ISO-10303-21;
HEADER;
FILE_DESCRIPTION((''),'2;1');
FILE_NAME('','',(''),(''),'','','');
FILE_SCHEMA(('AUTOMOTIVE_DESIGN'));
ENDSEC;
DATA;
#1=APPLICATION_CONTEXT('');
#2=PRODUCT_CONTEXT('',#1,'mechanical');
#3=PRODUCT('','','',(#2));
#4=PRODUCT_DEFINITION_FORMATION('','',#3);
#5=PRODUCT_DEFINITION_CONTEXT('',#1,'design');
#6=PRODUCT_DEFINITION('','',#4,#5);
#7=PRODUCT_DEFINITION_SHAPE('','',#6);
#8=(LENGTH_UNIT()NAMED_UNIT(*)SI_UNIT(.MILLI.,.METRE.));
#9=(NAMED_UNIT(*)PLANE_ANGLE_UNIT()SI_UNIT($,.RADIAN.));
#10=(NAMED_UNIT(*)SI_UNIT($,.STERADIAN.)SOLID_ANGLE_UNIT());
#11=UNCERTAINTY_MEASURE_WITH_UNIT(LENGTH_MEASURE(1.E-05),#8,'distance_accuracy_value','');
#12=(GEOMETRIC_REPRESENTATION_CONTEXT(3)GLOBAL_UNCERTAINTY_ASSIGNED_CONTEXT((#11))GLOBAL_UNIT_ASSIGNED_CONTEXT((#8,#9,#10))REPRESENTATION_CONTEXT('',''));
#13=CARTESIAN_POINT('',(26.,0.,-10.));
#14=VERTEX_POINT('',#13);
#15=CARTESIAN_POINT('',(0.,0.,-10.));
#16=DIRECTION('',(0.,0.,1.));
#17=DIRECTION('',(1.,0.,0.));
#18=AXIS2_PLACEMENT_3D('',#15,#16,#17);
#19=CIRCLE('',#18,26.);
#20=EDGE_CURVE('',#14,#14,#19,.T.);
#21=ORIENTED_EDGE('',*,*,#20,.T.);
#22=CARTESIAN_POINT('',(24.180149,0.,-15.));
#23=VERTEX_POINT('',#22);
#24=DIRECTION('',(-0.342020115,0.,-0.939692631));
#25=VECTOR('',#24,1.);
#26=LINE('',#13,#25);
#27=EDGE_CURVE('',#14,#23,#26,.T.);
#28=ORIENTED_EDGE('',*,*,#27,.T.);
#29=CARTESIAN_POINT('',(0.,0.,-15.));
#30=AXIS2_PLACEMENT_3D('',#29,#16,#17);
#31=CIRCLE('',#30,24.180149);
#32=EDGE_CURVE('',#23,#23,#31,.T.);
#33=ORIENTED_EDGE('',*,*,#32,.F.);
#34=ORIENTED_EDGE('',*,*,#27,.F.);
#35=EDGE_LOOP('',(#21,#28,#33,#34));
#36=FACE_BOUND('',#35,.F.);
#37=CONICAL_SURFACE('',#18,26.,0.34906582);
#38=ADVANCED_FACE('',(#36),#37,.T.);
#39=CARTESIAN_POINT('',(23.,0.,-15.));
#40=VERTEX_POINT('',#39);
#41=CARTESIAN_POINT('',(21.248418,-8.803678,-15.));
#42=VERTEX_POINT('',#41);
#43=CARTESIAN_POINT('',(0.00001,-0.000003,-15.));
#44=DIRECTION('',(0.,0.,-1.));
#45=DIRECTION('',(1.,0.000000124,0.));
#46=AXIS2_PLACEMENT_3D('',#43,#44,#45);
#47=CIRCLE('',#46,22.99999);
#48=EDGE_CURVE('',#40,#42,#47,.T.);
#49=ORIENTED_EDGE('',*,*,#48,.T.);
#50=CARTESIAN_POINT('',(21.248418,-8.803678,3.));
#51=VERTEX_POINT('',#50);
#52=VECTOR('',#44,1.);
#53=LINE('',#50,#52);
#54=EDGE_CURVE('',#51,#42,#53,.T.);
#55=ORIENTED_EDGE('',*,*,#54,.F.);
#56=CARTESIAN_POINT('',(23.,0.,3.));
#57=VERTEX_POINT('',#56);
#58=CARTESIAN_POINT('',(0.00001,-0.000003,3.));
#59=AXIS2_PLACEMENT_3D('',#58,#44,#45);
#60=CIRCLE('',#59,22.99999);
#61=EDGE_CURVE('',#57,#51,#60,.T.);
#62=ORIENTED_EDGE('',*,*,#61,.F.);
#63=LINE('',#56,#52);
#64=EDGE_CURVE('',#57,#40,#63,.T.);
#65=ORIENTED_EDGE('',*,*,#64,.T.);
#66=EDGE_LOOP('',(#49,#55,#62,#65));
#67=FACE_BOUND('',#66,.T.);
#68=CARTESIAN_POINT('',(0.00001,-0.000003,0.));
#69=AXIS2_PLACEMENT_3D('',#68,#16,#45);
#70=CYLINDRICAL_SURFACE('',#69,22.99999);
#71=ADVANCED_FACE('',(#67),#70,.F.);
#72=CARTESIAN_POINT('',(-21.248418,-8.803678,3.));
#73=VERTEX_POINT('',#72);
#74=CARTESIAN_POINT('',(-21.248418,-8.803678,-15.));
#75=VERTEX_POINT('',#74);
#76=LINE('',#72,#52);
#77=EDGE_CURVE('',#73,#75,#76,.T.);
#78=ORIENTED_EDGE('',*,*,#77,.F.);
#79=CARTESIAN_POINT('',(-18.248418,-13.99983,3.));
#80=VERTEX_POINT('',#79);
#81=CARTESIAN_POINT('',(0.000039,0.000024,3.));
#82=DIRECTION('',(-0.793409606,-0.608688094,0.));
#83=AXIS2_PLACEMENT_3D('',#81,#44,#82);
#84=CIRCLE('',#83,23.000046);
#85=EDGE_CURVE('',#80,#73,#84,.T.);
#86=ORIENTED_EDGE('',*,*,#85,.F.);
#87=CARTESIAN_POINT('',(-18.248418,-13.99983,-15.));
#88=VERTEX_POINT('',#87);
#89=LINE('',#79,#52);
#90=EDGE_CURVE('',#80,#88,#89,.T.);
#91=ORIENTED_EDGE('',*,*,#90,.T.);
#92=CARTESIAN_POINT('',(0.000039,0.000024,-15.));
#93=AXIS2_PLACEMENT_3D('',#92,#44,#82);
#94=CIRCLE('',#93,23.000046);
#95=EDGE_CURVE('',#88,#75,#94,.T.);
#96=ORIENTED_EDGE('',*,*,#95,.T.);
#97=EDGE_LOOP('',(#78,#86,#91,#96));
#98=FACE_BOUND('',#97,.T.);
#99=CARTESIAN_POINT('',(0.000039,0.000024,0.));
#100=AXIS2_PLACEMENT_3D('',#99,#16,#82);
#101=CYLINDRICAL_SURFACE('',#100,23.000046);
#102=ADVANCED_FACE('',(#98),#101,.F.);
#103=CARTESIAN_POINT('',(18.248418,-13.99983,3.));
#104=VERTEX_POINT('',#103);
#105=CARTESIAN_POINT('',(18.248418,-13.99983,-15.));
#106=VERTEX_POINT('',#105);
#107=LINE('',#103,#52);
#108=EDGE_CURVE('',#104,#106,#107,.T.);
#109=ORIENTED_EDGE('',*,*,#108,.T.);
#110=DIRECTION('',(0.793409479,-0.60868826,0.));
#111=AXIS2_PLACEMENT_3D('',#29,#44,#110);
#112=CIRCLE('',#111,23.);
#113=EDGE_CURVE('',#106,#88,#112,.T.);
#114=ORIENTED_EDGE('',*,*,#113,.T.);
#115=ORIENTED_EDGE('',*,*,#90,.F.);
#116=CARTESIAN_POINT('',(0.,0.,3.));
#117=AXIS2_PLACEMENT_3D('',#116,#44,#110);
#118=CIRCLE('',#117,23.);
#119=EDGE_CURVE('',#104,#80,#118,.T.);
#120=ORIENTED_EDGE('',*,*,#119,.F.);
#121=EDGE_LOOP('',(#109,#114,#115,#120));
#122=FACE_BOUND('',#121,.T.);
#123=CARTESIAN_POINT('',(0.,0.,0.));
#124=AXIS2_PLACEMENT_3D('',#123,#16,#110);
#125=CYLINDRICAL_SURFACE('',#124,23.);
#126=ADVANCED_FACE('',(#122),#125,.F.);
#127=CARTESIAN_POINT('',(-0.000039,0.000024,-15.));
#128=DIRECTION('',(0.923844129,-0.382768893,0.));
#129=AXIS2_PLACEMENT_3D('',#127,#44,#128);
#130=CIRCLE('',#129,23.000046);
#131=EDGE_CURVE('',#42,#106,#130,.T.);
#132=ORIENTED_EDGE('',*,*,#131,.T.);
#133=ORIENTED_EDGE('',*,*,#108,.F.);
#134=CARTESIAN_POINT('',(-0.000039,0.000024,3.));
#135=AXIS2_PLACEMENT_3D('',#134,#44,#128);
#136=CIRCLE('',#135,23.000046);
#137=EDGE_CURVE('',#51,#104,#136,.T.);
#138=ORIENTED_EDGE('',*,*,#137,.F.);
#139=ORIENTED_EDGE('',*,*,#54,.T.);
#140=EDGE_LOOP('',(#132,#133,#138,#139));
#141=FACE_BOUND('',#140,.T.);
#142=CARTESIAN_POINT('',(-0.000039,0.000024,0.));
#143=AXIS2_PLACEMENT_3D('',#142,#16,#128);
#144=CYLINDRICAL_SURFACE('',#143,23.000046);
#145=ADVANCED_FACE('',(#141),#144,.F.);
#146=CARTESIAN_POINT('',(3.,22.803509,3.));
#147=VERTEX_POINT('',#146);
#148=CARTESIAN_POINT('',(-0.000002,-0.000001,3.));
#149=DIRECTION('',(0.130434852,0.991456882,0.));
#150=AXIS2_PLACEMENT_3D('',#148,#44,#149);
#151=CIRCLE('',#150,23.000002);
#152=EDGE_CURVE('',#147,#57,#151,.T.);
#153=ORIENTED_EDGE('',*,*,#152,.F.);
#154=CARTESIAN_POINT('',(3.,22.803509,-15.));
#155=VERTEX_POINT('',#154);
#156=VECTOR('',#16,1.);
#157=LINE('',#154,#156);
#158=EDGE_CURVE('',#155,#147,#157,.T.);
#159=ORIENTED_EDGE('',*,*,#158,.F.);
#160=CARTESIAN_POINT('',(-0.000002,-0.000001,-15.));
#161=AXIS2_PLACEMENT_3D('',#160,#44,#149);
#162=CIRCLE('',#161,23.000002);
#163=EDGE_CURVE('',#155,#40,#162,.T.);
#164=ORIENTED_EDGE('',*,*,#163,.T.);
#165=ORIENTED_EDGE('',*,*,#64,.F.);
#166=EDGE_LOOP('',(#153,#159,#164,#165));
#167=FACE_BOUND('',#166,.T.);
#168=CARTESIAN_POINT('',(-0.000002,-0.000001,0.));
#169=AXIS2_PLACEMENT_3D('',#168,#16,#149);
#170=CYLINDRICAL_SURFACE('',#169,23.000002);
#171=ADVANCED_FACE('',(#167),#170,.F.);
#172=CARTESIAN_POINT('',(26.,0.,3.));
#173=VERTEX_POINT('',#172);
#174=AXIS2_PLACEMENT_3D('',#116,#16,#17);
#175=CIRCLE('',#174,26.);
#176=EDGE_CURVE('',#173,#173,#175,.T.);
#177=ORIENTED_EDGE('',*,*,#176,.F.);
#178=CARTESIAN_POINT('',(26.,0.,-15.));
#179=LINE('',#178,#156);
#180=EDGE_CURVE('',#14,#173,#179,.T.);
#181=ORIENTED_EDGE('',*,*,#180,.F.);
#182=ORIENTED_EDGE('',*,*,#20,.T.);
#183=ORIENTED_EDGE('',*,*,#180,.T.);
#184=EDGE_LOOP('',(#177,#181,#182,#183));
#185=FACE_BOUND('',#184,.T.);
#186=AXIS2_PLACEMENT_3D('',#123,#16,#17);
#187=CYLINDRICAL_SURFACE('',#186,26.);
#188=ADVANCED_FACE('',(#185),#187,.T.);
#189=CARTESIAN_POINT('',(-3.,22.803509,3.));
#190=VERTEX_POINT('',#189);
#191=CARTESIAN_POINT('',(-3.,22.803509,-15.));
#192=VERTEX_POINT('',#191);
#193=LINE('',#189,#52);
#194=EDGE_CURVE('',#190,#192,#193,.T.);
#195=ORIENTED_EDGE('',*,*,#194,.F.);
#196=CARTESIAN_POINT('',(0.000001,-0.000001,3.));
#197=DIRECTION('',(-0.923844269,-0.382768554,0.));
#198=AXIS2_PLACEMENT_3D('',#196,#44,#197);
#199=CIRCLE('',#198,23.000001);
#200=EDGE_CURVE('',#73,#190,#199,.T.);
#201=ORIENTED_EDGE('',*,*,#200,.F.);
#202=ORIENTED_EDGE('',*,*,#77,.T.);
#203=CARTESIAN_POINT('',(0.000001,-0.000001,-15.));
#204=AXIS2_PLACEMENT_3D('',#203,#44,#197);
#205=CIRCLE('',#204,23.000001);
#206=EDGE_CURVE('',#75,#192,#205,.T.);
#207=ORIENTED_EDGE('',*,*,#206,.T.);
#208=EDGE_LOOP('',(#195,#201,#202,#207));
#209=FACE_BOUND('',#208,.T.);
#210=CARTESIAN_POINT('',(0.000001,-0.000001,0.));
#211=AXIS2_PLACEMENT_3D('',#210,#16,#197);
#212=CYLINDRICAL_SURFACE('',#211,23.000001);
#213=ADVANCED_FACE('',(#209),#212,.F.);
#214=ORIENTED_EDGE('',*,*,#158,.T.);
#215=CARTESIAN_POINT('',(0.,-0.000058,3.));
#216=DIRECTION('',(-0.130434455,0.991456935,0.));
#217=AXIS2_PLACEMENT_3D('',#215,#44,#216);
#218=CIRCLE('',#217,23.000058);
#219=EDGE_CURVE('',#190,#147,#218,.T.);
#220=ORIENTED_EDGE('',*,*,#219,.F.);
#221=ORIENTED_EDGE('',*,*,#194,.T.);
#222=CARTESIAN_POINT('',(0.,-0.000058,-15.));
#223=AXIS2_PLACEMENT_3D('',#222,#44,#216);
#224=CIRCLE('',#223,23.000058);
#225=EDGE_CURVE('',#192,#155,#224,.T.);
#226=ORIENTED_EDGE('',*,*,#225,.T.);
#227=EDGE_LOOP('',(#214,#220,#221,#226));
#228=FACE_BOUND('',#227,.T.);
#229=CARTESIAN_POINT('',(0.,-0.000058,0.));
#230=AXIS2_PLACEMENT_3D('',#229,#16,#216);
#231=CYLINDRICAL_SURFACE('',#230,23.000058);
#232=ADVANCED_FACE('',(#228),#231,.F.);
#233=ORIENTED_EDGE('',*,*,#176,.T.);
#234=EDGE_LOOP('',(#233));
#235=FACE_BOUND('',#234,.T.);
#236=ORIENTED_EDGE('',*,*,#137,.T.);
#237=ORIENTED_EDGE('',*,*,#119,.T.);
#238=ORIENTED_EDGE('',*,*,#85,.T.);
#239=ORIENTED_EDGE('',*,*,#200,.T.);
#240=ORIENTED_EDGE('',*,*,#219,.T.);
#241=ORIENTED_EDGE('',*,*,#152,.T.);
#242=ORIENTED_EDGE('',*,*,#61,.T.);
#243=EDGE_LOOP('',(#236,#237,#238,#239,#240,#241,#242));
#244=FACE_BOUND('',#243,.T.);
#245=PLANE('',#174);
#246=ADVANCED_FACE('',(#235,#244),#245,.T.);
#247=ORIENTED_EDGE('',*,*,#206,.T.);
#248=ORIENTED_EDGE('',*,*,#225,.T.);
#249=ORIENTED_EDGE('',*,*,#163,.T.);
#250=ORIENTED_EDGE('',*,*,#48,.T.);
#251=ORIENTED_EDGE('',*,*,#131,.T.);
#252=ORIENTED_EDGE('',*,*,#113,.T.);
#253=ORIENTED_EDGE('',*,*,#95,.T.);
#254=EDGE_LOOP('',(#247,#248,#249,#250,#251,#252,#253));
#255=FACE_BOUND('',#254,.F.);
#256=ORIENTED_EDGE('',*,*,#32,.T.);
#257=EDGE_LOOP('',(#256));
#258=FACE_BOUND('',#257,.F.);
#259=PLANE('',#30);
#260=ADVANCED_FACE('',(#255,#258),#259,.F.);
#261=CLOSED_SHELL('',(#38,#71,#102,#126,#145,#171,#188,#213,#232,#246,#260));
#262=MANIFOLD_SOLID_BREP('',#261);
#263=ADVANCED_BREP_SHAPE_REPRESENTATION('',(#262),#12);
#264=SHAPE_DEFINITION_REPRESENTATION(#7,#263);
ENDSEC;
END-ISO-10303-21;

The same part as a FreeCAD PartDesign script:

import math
import FreeCAD as App
import Part
import Sketcher
from FreeCAD import Vector
Q = App.Units.Quantity


def edges_at(feature, points):
    """Names of the edges that pass closest to the given points."""
    edges = feature.Shape.Edges
    near = lambda p: min(range(len(edges)), key=lambda i: edges[i].distToShape(Part.Vertex(*p))[0])
    return sorted({f"Edge{near(p) + 1}" for p in points})

doc = App.newDocument("Part")
body = doc.addObject("PartDesign::Body", "Body")

# Sketch on XY plane
sketch1 = body.newObject("Sketcher::SketchObject", "Sketch")
sketch1.AttachmentSupport = (doc.getObject("XY_Plane"), [""])
sketch1.MapMode = "FlatFace"
sketch1.addGeometry([
    Part.Circle(Vector(0, 0, 0), Vector(0, 0, 1), 26),  # 0
    Part.ArcOfCircle(Part.Circle(Vector(0, -0.000058, 0), Vector(0, 0, 1), 23.000058), math.radians(82.505301), math.radians(97.494699)),  # 1
    Part.ArcOfCircle(Part.Circle(Vector(-0.000002, -0.000001, 0), Vector(0, 0, 1), 23.000002), math.radians(0.000003), math.radians(82.505279)),  # 2
    Part.ArcOfCircle(Part.Circle(Vector(0.00001, -0.000003, 0), Vector(0, 0, 1), 22.99999), math.radians(-22.505285), math.radians(0.000007)),  # 3
    Part.ArcOfCircle(Part.Circle(Vector(-0.000039, 0.000024, 0), Vector(0, 0, 1), 23.000046), math.radians(-37.494704), math.radians(-22.5053)),  # 4
    Part.ArcOfCircle(Part.Circle(Vector(0, 0, 0), Vector(0, 0, 1), 23), math.radians(-142.505284), math.radians(-37.494716)),  # 5
    Part.ArcOfCircle(Part.Circle(Vector(0.000039, 0.000024, 0), Vector(0, 0, 1), 23.000046), math.radians(-157.4947), math.radians(-142.505296)),  # 6
    Part.ArcOfCircle(Part.Circle(Vector(0.000001, -0.000001, 0), Vector(0, 0, 1), 23.000001), math.radians(97.494721), math.radians(202.505279)),  # 7
], False)
sketch1.addConstraint([
    Sketcher.Constraint("Coincident", 1, 1, 2, 2),
    Sketcher.Constraint("Coincident", 2, 1, 3, 2),
    Sketcher.Constraint("Coincident", 3, 1, 4, 2),
    Sketcher.Constraint("Coincident", 4, 1, 5, 2),
    Sketcher.Constraint("Coincident", 5, 1, 6, 2),
    Sketcher.Constraint("Coincident", 6, 1, 7, 2),
    Sketcher.Constraint("Coincident", 7, 1, 1, 2),
    Sketcher.Constraint("Coincident", 0, 3, -1, 1),
    Sketcher.Constraint("Coincident", 2, 3, -1, 1),
    Sketcher.Constraint("Coincident", 5, 3, -1, 1),
    Sketcher.Constraint("Coincident", 7, 3, -1, 1),
    Sketcher.Constraint("PointOnObject", 1, 3, -2),
    Sketcher.Constraint("PointOnObject", 2, 1, -1),
    Sketcher.Constraint("Diameter", 0, Q("52 mm")),
    Sketcher.Constraint("Radius", 2, Q("23.000002 mm")),
    Sketcher.Constraint("Radius", 5, Q("23 mm")),
    Sketcher.Constraint("DistanceX", -1, 1, 1, 1, Q("3 mm")),
    Sketcher.Constraint("DistanceX", 7, 1, -1, 1, Q("3 mm")),
    Sketcher.Constraint("DistanceX", 4, 1, 3, 1, Q("3 mm")),
    Sketcher.Constraint("DistanceX", 6, 1, 5, 1, Q("3 mm")),
    Sketcher.Constraint("Radius", 3, Q("22.99999 mm")),
    Sketcher.Constraint("Radius", 1, Q("23.000058 mm")),
    Sketcher.Constraint("Radius", 4, Q("23.000046 mm")),
    Sketcher.Constraint("Radius", 6, Q("23.000046 mm")),
    Sketcher.Constraint("DistanceY", 4, 1, -1, 1, Q("13.99983 mm")),
    Sketcher.Constraint("DistanceX", 5, 1, -1, 1, Q("18.248418 mm")),
    Sketcher.Constraint("DistanceX", 4, 3, 1, 1, Q("3.000039 mm")),
])
pad1 = body.newObject("PartDesign::Pad", "Pad")
pad1.Profile = sketch1
pad1.Length = 3

# Sketch on XY plane
sketch2 = body.newObject("Sketcher::SketchObject", "Sketch001")
sketch2.AttachmentSupport = (doc.getObject("XY_Plane"), [""])
sketch2.MapMode = "FlatFace"
sketch2.addGeometry([
    Part.Circle(Vector(0, 0, 0), Vector(0, 0, 1), 26),  # 0
    Part.ArcOfCircle(Part.Circle(Vector(0, -0.000058, 0), Vector(0, 0, 1), 23.000058), math.radians(82.505301), math.radians(97.494699)),  # 1
    Part.ArcOfCircle(Part.Circle(Vector(-0.000002, -0.000001, 0), Vector(0, 0, 1), 23.000002), math.radians(0.000003), math.radians(82.505279)),  # 2
    Part.ArcOfCircle(Part.Circle(Vector(0.00001, -0.000003, 0), Vector(0, 0, 1), 22.99999), math.radians(-22.505285), math.radians(0.000007)),  # 3
    Part.ArcOfCircle(Part.Circle(Vector(-0.000039, 0.000024, 0), Vector(0, 0, 1), 23.000046), math.radians(-37.494704), math.radians(-22.5053)),  # 4
    Part.ArcOfCircle(Part.Circle(Vector(0, 0, 0), Vector(0, 0, 1), 23), math.radians(-142.505284), math.radians(-37.494716)),  # 5
    Part.ArcOfCircle(Part.Circle(Vector(0.000039, 0.000024, 0), Vector(0, 0, 1), 23.000046), math.radians(-157.4947), math.radians(-142.505296)),  # 6
    Part.ArcOfCircle(Part.Circle(Vector(0.000001, -0.000001, 0), Vector(0, 0, 1), 23.000001), math.radians(97.494721), math.radians(202.505279)),  # 7
], False)
sketch2.addConstraint([
    Sketcher.Constraint("Coincident", 1, 1, 2, 2),
    Sketcher.Constraint("Coincident", 2, 1, 3, 2),
    Sketcher.Constraint("Coincident", 3, 1, 4, 2),
    Sketcher.Constraint("Coincident", 4, 1, 5, 2),
    Sketcher.Constraint("Coincident", 5, 1, 6, 2),
    Sketcher.Constraint("Coincident", 6, 1, 7, 2),
    Sketcher.Constraint("Coincident", 7, 1, 1, 2),
    Sketcher.Constraint("Coincident", 0, 3, -1, 1),
    Sketcher.Constraint("Coincident", 2, 3, -1, 1),
    Sketcher.Constraint("Coincident", 5, 3, -1, 1),
    Sketcher.Constraint("Coincident", 7, 3, -1, 1),
    Sketcher.Constraint("PointOnObject", 1, 3, -2),
    Sketcher.Constraint("PointOnObject", 2, 1, -1),
    Sketcher.Constraint("Diameter", 0, Q("52 mm")),
    Sketcher.Constraint("Radius", 2, Q("23.000002 mm")),
    Sketcher.Constraint("Radius", 5, Q("23 mm")),
    Sketcher.Constraint("DistanceX", -1, 1, 1, 1, Q("3 mm")),
    Sketcher.Constraint("DistanceX", 7, 1, -1, 1, Q("3 mm")),
    Sketcher.Constraint("DistanceX", 4, 1, 3, 1, Q("3 mm")),
    Sketcher.Constraint("DistanceX", 6, 1, 5, 1, Q("3 mm")),
    Sketcher.Constraint("Radius", 3, Q("22.99999 mm")),
    Sketcher.Constraint("Radius", 1, Q("23.000058 mm")),
    Sketcher.Constraint("Radius", 4, Q("23.000046 mm")),
    Sketcher.Constraint("Radius", 6, Q("23.000046 mm")),
    Sketcher.Constraint("DistanceY", 4, 1, -1, 1, Q("13.99983 mm")),
    Sketcher.Constraint("DistanceX", 5, 1, -1, 1, Q("18.248418 mm")),
    Sketcher.Constraint("DistanceX", 4, 3, 1, 1, Q("3.000039 mm")),
])
pad2 = body.newObject("PartDesign::Pad", "Pad001")
pad2.Profile = sketch2
pad2.Length = 15
pad2.Reversed = True
doc.recompute()

chamfer = body.newObject("PartDesign::Chamfer", "Chamfer")
chamfer.Base = (pad2, edges_at(pad2, [(-26, 0, -15)]))
chamfer.ChamferType = "Two distances"
chamfer.Size = 5
chamfer.Size2 = 1.819851
chamfer.FlipDirection = True

doc.recompute()
